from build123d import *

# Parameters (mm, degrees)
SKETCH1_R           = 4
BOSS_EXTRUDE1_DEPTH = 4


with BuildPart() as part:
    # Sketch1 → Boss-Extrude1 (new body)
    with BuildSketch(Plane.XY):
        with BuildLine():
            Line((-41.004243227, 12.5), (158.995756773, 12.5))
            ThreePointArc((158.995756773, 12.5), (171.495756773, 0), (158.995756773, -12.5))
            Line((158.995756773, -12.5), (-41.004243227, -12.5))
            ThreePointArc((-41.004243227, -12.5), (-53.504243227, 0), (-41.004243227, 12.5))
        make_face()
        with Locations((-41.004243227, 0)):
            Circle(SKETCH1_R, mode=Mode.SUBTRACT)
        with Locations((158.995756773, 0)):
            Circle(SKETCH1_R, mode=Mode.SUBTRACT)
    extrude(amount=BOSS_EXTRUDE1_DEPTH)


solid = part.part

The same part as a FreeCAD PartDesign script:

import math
import FreeCAD as App
import Part
import Sketcher
from FreeCAD import Vector

doc = App.newDocument("Part")
body = doc.addObject("PartDesign::Body", "Body")

# Sketch on XY plane
sketch1 = body.newObject("Sketcher::SketchObject", "Sketch")
sketch1.AttachmentSupport = (doc.getObject("XY_Plane"), [""])
sketch1.MapMode = "FlatFace"
sketch1.addGeometry([
    Part.LineSegment(Vector(158.995757, 12.5, 0), Vector(-41.004243, 12.5, 0)),  # 0
    Part.ArcOfCircle(Part.Circle(Vector(-41.004243, 0, 0), Vector(0, 0, 1), 12.5), math.radians(90), math.radians(270)),  # 1
    Part.LineSegment(Vector(-41.004243, -12.5, 0), Vector(158.995757, -12.5, 0)),  # 2
    Part.ArcOfCircle(Part.Circle(Vector(158.995757, 0, 0), Vector(0, 0, 1), 12.5), math.radians(-90), math.radians(90)),  # 3
    Part.Circle(Vector(158.995757, 0, 0), Vector(0, 0, 1), 4),  # 4
    Part.Circle(Vector(-41.004243, 0, 0), Vector(0, 0, 1), 4),  # 5
], False)
sketch1.addConstraint([
    Sketcher.Constraint("Tangent", 0, 2, 1, 1),
    Sketcher.Constraint("Tangent", 1, 2, 2, 1),
    Sketcher.Constraint("Tangent", 2, 2, 3, 1),
    Sketcher.Constraint("Tangent", 3, 2, 0, 1),
    Sketcher.Constraint("Horizontal", 0),
    Sketcher.Constraint("Horizontal", 2),
    Sketcher.Constraint("Coincident", 4, 3, 3, 3),
    Sketcher.Constraint("Coincident", 5, 3, 1, 3),
    Sketcher.Constraint("Equal", 4, 5),
    Sketcher.Constraint("PointOnObject", 1, 3, -1),
    Sketcher.Constraint("Diameter", 4, 8.0),
    Sketcher.Constraint("Radius", 1, 12.5),
    Sketcher.Constraint("DistanceX", 0, 2, 0, 1, 200.0),
    Sketcher.Constraint("DistanceX", 1, 3, -1, 1, 41.004243),
])
pad1 = body.newObject("PartDesign::Pad", "Pad")
pad1.Profile = sketch1
pad1.Length = 4

doc.recompute()
